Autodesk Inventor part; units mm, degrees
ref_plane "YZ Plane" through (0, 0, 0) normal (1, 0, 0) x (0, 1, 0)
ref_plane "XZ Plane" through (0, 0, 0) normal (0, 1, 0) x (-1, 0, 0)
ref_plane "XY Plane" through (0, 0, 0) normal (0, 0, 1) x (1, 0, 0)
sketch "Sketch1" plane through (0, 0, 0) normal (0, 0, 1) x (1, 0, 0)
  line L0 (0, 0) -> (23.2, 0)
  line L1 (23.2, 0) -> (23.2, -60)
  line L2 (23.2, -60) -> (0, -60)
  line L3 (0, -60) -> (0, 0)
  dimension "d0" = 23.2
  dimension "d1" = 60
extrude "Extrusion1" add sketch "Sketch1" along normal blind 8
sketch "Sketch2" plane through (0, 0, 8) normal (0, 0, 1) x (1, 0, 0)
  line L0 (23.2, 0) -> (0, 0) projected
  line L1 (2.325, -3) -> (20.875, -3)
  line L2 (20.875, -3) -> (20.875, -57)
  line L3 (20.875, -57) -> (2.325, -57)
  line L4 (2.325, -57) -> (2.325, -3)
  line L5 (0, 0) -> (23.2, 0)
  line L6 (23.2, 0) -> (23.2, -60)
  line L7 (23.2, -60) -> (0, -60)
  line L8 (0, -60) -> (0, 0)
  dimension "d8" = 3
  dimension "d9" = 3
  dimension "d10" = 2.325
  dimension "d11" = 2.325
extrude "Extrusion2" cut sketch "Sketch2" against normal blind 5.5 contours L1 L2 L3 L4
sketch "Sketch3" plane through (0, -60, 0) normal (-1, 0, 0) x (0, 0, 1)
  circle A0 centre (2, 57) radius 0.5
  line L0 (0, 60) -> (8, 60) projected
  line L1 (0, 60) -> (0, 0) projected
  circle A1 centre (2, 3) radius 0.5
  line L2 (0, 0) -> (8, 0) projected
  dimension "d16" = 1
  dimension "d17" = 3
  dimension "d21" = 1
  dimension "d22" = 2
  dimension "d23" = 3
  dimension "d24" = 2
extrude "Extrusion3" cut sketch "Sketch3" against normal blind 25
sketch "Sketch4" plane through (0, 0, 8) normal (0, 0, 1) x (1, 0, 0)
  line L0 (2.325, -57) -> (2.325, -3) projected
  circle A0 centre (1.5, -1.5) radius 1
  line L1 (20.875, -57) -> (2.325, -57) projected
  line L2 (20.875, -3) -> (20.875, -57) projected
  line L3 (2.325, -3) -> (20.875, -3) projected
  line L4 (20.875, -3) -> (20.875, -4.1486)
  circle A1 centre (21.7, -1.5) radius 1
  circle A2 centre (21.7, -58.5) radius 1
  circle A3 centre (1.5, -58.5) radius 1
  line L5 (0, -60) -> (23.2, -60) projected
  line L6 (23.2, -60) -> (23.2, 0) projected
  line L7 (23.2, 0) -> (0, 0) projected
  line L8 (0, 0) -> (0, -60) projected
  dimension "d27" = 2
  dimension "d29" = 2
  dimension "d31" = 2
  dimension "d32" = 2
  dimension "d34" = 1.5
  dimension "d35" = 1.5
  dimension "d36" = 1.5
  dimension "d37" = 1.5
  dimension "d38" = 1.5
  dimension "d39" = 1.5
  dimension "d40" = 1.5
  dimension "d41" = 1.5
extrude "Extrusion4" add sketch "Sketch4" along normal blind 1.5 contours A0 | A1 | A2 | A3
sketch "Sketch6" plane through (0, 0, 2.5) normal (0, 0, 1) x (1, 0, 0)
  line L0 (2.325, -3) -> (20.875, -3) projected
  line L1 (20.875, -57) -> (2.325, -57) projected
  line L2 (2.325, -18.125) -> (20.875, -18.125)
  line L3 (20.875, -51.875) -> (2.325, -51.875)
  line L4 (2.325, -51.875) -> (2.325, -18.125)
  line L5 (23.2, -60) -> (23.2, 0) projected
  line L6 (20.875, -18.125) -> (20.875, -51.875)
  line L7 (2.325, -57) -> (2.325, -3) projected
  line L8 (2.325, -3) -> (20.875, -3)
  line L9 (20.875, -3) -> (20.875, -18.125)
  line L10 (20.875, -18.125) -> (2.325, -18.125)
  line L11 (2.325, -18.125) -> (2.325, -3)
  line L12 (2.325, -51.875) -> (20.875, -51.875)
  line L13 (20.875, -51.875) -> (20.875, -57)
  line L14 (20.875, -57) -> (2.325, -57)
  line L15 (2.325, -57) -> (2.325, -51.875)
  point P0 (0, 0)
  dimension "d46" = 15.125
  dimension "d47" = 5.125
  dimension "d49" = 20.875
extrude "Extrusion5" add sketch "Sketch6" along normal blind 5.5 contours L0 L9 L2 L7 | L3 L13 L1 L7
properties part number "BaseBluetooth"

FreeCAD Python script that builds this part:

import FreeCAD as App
import Part
import Sketcher

doc = App.newDocument("Part")
params = doc.addObject("Spreadsheet::Sheet", "Params")
for row, (alias, value) in enumerate([
    ("sketch1_height", "60 mm"),
    ("sketch1_width", "23.2 mm"),
    ("pad1_length", "8 mm"),
    ("sketch2_height", "54 mm"),
    ("sketch2_width", "18.55 mm"),
    ("pocket1_length", "5.5 mm"),
    ("sketch3_diameter", "1 mm"),
    ("pocket2_length", "25 mm"),
    ("sketch4_diameter", "2 mm"),
    ("pad2_length", "1.5 mm"),
    ("sketch5_width", "18.55 mm"),
    ("pad3_length", "5.5 mm"),
], start=1):
    params.set(f"A{row}", alias)
    params.set(f"B{row}", "=" + value)
    params.setAlias(f"B{row}", alias)

body = doc.addObject("PartDesign::Body", "Body")

sketch1 = doc.addObject("Sketcher::SketchObject", "Sketch")
body.addObject(sketch1)
sketch1.AttachmentSupport = (doc.XY_Plane, [""])
sketch1.MapMode = "FlatFace"
sketch1.addGeometry(Part.LineSegment(App.Vector(23.2, 0, 0), App.Vector(0, 0, 0)), False)
sketch1.addGeometry(Part.LineSegment(App.Vector(0, 0, 0), App.Vector(0, -60, 0)), False)
sketch1.addGeometry(Part.LineSegment(App.Vector(0, -60, 0), App.Vector(23.2, -60, 0)), False)
sketch1.addGeometry(Part.LineSegment(App.Vector(23.2, -60, 0), App.Vector(23.2, 0, 0)), False)
sketch1.addConstraint(Sketcher.Constraint("Coincident", 0, 2, 1, 1))
sketch1.addConstraint(Sketcher.Constraint("Coincident", 1, 2, 2, 1))
sketch1.addConstraint(Sketcher.Constraint("Coincident", 2, 2, 3, 1))
sketch1.addConstraint(Sketcher.Constraint("Coincident", 3, 2, 0, 1))
sketch1.addConstraint(Sketcher.Constraint("Horizontal", 0))
sketch1.addConstraint(Sketcher.Constraint("Vertical", 1))
sketch1.addConstraint(Sketcher.Constraint("Horizontal", 2))
sketch1.addConstraint(Sketcher.Constraint("Vertical", 3))
sketch1.addConstraint(Sketcher.Constraint("Coincident", 0, 2, -1, 1))
sketch1.addConstraint(Sketcher.Constraint("DistanceY", 1, 2, 1, 1, 60.0))
sketch1.addConstraint(Sketcher.Constraint("DistanceX", 0, 2, 0, 1, 23.2))
sketch1.setExpression("Constraints[9]", "Params.sketch1_height")
sketch1.setExpression("Constraints[10]", "Params.sketch1_width")
pad1 = doc.addObject("PartDesign::Pad", "Pad")
body.addObject(pad1)
pad1.Profile = sketch1
pad1.setExpression("Length", "Params.pad1_length")

sketch2 = doc.addObject("Sketcher::SketchObject", "Sketch001")
body.addObject(sketch2)
sketch2.AttachmentSupport = (doc.XY_Plane, [""])
sketch2.MapMode = "FlatFace"
sketch2.AttachmentOffset = App.Placement(App.Vector(0, 0, 8), App.Rotation())
sketch2.addGeometry(Part.LineSegment(App.Vector(20.875, -3, 0), App.Vector(2.325, -3, 0)), False)
sketch2.addGeometry(Part.LineSegment(App.Vector(2.325, -3, 0), App.Vector(2.325, -57, 0)), False)
sketch2.addGeometry(Part.LineSegment(App.Vector(2.325, -57, 0), App.Vector(20.875, -57, 0)), False)
sketch2.addGeometry(Part.LineSegment(App.Vector(20.875, -57, 0), App.Vector(20.875, -3, 0)), False)
sketch2.addConstraint(Sketcher.Constraint("Coincident", 0, 2, 1, 1))
sketch2.addConstraint(Sketcher.Constraint("Coincident", 1, 2, 2, 1))
sketch2.addConstraint(Sketcher.Constraint("Coincident", 2, 2, 3, 1))
sketch2.addConstraint(Sketcher.Constraint("Coincident", 3, 2, 0, 1))
sketch2.addConstraint(Sketcher.Constraint("Horizontal", 0))
sketch2.addConstraint(Sketcher.Constraint("Vertical", 1))
sketch2.addConstraint(Sketcher.Constraint("Horizontal", 2))
sketch2.addConstraint(Sketcher.Constraint("Vertical", 3))
sketch2.addConstraint(Sketcher.Constraint("DistanceY", 0, 2, -1, 1, 3.0))
sketch2.addConstraint(Sketcher.Constraint("DistanceY", 1, 2, 1, 1, 54.0))
sketch2.addConstraint(Sketcher.Constraint("DistanceX", -1, 1, 0, 2, 2.325))
sketch2.addConstraint(Sketcher.Constraint("DistanceX", 0, 2, 0, 1, 18.55))
sketch2.setExpression("Constraints[9]", "Params.sketch2_height")
sketch2.setExpression("Constraints[11]", "Params.sketch2_width")
pocket1 = doc.addObject("PartDesign::Pocket", "Pocket")
body.addObject(pocket1)
pocket1.Profile = sketch2
pocket1.setExpression("Length", "Params.pocket1_length")

sketch3 = doc.addObject("Sketcher::SketchObject", "Sketch002")
body.addObject(sketch3)
sketch3.AttachmentSupport = (doc.YZ_Plane, [""])
sketch3.MapMode = "FlatFace"
sketch3.addGeometry(Part.Circle(App.Vector(-3, 2, 0), App.Vector(0, 0, 1), 0.5), False)
sketch3.addGeometry(Part.Circle(App.Vector(-57, 2, 0), App.Vector(0, 0, 1), 0.5), False)
sketch3.addConstraint(Sketcher.Constraint("Equal", 0, 1))
sketch3.addConstraint(Sketcher.Constraint("Horizontal", 0, 3, 1, 3))
sketch3.addConstraint(Sketcher.Constraint("Diameter", 0, 1.0))
sketch3.addConstraint(Sketcher.Constraint("DistanceX", 0, 3, -1, 1, 3.0))
sketch3.addConstraint(Sketcher.Constraint("DistanceY", -1, 1, 0, 3, 2.0))
sketch3.addConstraint(Sketcher.Constraint("DistanceX", 1, 3, -1, 1, 57.0))
sketch3.setExpression("Constraints[2]", "Params.sketch3_diameter")
pocket2 = doc.addObject("PartDesign::Pocket", "Pocket001")
body.addObject(pocket2)
pocket2.Profile = sketch3
pocket2.setExpression("Length", "Params.pocket2_length")
pocket2.Reversed = True

sketch4 = doc.addObject("Sketcher::SketchObject", "Sketch003")
body.addObject(sketch4)
sketch4.AttachmentSupport = (doc.XY_Plane, [""])
sketch4.MapMode = "FlatFace"
sketch4.AttachmentOffset = App.Placement(App.Vector(0, 0, 8), App.Rotation())
sketch4.addGeometry(Part.Circle(App.Vector(1.5, -1.5, 0), App.Vector(0, 0, 1), 1), False)
sketch4.addGeometry(Part.Circle(App.Vector(21.7, -1.5, 0), App.Vector(0, 0, 1), 1), False)
sketch4.addGeometry(Part.Circle(App.Vector(21.7, -58.5, 0), App.Vector(0, 0, 1), 1), False)
sketch4.addGeometry(Part.Circle(App.Vector(1.5, -58.5, 0), App.Vector(0, 0, 1), 1), False)
sketch4.addConstraint(Sketcher.Constraint("Equal", 0, 1))
sketch4.addConstraint(Sketcher.Constraint("Equal", 1, 2))
sketch4.addConstraint(Sketcher.Constraint("Equal", 2, 3))
sketch4.addConstraint(Sketcher.Constraint("Horizontal", 0, 3, 1, 3))
sketch4.addConstraint(Sketcher.Constraint("Horizontal", 2, 3, 3, 3))
sketch4.addConstraint(Sketcher.Constraint("Vertical", 1, 3, 2, 3))
sketch4.addConstraint(Sketcher.Constraint("Vertical", 0, 3, 3, 3))
sketch4.addConstraint(Sketcher.Constraint("Diameter", 0, 2.0))
sketch4.addConstraint(Sketcher.Constraint("DistanceX", -1, 1, 0, 3, 1.5))
sketch4.addConstraint(Sketcher.Constraint("DistanceY", 0, 3, -1, 1, 1.5))
sketch4.addConstraint(Sketcher.Constraint("DistanceY", 2, 3, 1, 3, 57.0))
sketch4.addConstraint(Sketcher.Constraint("DistanceX", -1, 1, 1, 3, 21.7))
sketch4.setExpression("Constraints[7]", "Params.sketch4_diameter")
pad2 = doc.addObject("PartDesign::Pad", "Pad001")
body.addObject(pad2)
pad2.Profile = sketch4
pad2.setExpression("Length", "Params.pad2_length")

sketch5 = doc.addObject("Sketcher::SketchObject", "Sketch004")
body.addObject(sketch5)
sketch5.AttachmentSupport = (doc.XY_Plane, [""])
sketch5.MapMode = "FlatFace"
sketch5.AttachmentOffset = App.Placement(App.Vector(0, 0, 2.5), App.Rotation())
sketch5.addGeometry(Part.LineSegment(App.Vector(20.875, -3, 0), App.Vector(2.325, -3, 0)), False)
sketch5.addGeometry(Part.LineSegment(App.Vector(2.325, -3, 0), App.Vector(2.325, -18.125, 0)), False)
sketch5.addGeometry(Part.LineSegment(App.Vector(2.325, -18.125, 0), App.Vector(20.875, -18.125, 0)), False)
sketch5.addGeometry(Part.LineSegment(App.Vector(20.875, -18.125, 0), App.Vector(20.875, -3, 0)), False)
sketch5.addGeometry(Part.LineSegment(App.Vector(20.875, -51.875, 0), App.Vector(2.325, -51.875, 0)), False)
sketch5.addGeometry(Part.LineSegment(App.Vector(2.325, -51.875, 0), App.Vector(2.325, -57, 0)), False)
sketch5.addGeometry(Part.LineSegment(App.Vector(2.325, -57, 0), App.Vector(20.875, -57, 0)), False)
sketch5.addGeometry(Part.LineSegment(App.Vector(20.875, -57, 0), App.Vector(20.875, -51.875, 0)), False)
sketch5.addConstraint(Sketcher.Constraint("Coincident", 0, 2, 1, 1))
sketch5.addConstraint(Sketcher.Constraint("Coincident", 1, 2, 2, 1))
sketch5.addConstraint(Sketcher.Constraint("Coincident", 2, 2, 3, 1))
sketch5.addConstraint(Sketcher.Constraint("Coincident", 3, 2, 0, 1))
sketch5.addConstraint(Sketcher.Constraint("Coincident", 4, 2, 5, 1))
sketch5.addConstraint(Sketcher.Constraint("Coincident", 5, 2, 6, 1))
sketch5.addConstraint(Sketcher.Constraint("Coincident", 6, 2, 7, 1))
sketch5.addConstraint(Sketcher.Constraint("Coincident", 7, 2, 4, 1))
sketch5.addConstraint(Sketcher.Constraint("Horizontal", 0))
sketch5.addConstraint(Sketcher.Constraint("Vertical", 1))
sketch5.addConstraint(Sketcher.Constraint("Horizontal", 2))
sketch5.addConstraint(Sketcher.Constraint("Vertical", 3))
sketch5.addConstraint(Sketcher.Constraint("Horizontal", 4))
sketch5.addConstraint(Sketcher.Constraint("Vertical", 5))
sketch5.addConstraint(Sketcher.Constraint("Horizontal", 6))
sketch5.addConstraint(Sketcher.Constraint("Vertical", 7))
sketch5.addConstraint(Sketcher.Constraint("Vertical", 1, 2, 4, 2))
sketch5.addConstraint(Sketcher.Constraint("Vertical", 3, 2, 6, 2))
sketch5.addConstraint(Sketcher.Constraint("DistanceY", 1, 2, 1, 1, 15.125))
sketch5.addConstraint(Sketcher.Constraint("DistanceY", 5, 2, 5, 1, 5.125))
sketch5.addConstraint(Sketcher.Constraint("DistanceX", -1, 1, 2, 2, 20.875))
sketch5.addConstraint(Sketcher.Constraint("DistanceY", 0, 2, -1, 1, 3.0))
sketch5.addConstraint(Sketcher.Constraint("DistanceY", 5, 2, -1, 1, 57.0))
sketch5.addConstraint(Sketcher.Constraint("DistanceX", 0, 2, 0, 1, 18.55))
sketch5.setExpression("Constraints[23]", "Params.sketch5_width")
pad3 = doc.addObject("PartDesign::Pad", "Pad002")
body.addObject(pad3)
pad3.Profile = sketch5
pad3.setExpression("Length", "Params.pad3_length")

doc.recompute()
